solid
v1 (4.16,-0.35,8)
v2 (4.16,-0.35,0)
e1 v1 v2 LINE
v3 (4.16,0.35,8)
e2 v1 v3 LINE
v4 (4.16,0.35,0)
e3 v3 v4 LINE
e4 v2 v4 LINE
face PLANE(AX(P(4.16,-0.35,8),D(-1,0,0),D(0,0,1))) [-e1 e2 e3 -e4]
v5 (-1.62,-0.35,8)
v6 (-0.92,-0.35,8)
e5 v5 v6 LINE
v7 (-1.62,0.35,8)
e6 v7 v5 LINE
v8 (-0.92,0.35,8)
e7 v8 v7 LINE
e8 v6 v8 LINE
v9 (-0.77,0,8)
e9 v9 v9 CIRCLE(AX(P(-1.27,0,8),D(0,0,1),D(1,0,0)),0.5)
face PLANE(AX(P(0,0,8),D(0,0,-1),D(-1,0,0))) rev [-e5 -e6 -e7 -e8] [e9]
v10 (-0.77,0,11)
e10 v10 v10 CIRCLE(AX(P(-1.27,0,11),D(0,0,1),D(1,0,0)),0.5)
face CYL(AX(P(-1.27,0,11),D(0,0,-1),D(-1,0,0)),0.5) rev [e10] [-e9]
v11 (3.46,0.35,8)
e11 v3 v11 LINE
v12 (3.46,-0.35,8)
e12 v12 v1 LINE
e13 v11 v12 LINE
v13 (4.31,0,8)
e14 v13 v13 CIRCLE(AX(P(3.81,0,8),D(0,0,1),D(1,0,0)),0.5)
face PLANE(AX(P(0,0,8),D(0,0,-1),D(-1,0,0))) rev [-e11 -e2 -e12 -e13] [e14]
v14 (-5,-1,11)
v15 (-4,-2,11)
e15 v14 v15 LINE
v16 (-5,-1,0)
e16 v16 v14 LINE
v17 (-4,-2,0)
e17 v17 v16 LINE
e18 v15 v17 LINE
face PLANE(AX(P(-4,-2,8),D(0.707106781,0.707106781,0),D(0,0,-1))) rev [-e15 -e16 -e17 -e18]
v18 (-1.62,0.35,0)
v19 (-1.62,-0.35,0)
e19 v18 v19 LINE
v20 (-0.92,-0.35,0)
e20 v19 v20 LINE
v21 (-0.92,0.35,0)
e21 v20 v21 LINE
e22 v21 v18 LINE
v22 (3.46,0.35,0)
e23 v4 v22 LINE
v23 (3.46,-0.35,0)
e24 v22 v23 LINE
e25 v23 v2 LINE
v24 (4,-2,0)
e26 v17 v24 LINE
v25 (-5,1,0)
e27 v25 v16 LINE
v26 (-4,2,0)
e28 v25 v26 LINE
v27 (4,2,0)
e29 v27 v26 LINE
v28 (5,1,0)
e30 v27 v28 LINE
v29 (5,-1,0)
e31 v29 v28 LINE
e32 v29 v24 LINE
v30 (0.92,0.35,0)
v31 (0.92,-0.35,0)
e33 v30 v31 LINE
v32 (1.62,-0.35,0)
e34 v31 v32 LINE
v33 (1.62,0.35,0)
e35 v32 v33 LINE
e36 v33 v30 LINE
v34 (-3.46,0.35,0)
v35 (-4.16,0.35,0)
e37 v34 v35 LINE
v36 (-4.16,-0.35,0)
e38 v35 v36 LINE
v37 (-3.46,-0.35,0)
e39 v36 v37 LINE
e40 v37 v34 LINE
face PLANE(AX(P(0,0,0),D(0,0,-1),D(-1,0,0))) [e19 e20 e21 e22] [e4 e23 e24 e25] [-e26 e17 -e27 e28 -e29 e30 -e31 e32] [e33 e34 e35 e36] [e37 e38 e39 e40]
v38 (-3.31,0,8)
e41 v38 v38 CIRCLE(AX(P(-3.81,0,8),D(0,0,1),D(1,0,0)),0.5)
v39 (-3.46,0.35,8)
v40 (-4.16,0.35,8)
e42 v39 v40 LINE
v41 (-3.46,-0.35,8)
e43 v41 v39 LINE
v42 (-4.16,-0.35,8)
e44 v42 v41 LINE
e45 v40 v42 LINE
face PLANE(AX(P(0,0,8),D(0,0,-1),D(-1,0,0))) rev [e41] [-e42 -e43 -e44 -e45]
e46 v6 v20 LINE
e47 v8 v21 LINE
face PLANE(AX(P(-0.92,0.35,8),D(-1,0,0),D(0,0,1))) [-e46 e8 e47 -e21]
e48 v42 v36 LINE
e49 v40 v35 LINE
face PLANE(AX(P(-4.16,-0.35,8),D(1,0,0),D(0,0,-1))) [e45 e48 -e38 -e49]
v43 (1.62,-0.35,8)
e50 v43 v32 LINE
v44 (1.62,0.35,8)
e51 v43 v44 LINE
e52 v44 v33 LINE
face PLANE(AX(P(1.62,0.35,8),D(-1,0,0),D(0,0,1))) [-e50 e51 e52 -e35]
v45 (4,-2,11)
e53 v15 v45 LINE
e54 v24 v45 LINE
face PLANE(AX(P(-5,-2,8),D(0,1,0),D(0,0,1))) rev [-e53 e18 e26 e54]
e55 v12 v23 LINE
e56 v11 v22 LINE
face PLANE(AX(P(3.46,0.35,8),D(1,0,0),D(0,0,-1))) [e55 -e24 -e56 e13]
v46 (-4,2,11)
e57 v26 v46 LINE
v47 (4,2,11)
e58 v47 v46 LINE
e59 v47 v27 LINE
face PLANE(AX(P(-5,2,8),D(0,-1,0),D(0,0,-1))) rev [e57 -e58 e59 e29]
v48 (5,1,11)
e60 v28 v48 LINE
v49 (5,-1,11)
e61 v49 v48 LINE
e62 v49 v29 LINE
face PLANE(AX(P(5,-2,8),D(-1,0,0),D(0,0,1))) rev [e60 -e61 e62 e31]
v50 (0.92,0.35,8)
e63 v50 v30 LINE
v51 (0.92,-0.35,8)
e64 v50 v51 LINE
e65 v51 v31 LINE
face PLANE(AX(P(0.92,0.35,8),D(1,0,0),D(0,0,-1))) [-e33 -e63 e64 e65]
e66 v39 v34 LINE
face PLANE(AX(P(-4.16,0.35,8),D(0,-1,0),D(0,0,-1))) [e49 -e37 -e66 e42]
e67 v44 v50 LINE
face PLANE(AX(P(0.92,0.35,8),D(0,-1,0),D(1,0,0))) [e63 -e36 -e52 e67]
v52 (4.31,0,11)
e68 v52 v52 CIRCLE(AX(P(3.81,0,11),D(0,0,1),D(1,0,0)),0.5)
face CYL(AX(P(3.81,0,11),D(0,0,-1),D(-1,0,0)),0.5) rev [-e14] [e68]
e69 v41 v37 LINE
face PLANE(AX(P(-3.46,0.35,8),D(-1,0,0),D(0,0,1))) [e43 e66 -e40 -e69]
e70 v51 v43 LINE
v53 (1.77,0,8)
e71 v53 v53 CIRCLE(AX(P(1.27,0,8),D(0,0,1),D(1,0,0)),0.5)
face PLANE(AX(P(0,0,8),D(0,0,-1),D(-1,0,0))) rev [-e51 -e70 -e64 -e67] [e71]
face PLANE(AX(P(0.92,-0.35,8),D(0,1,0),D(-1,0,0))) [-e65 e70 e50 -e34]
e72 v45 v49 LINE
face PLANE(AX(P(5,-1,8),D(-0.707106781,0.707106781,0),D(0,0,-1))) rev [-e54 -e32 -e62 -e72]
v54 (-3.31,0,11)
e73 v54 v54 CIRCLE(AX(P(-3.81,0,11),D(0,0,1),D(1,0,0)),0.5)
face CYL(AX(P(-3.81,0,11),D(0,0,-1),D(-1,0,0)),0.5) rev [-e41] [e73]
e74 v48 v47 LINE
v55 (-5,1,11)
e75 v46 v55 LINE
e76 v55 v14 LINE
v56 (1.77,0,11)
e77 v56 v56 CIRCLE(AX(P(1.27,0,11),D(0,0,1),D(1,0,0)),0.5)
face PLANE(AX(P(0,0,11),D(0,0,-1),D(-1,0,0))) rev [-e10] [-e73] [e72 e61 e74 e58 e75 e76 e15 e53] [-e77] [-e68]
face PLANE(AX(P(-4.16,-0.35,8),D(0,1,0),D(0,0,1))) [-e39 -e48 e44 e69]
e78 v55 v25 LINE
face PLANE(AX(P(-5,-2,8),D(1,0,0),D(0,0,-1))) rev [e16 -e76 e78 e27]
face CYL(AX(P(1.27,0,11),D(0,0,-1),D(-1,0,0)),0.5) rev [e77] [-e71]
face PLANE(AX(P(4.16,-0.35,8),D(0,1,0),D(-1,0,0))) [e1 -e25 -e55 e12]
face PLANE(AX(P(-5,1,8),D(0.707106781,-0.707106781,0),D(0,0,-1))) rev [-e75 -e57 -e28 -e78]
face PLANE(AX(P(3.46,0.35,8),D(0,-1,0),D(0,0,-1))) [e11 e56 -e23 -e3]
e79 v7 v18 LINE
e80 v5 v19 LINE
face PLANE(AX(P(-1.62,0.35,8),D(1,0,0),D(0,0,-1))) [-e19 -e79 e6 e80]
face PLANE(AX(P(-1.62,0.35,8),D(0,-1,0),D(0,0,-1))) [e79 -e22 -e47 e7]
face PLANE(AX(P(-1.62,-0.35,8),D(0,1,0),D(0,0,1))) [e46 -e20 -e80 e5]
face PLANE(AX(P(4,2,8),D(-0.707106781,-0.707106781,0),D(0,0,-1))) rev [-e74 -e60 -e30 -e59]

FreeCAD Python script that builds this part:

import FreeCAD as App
import Part
import Sketcher
from FreeCAD import Vector
Q = App.Units.Quantity


def edges_at(feature, points):
    """Names of the edges that pass closest to the given points."""
    edges = feature.Shape.Edges
    near = lambda p: min(range(len(edges)), key=lambda i: edges[i].distToShape(Part.Vertex(*p))[0])
    return sorted({f"Edge{near(p) + 1}" for p in points})


def add_polygon(sketch, points):
    """Adds a closed chain of lines whose ends are joined by coincident constraints."""
    first, n = sketch.GeometryCount, len(points)
    for a, b in zip(points, points[1:] + points[:1]):
        sketch.addGeometry(Part.LineSegment(App.Vector(*a, 0), App.Vector(*b, 0)), False)
    for i in range(n):
        sketch.addConstraint(Sketcher.Constraint("Coincident", first + i, 2, first + (i + 1) % n, 1))

doc = App.newDocument("Part")
body = doc.addObject("PartDesign::Body", "Body")

sketch1 = body.newObject("Sketcher::SketchObject", "Sketch")
sketch1.AttachmentSupport = (doc.getObject("XY_Plane"), [""])
sketch1.MapMode = "FlatFace"
add_polygon(sketch1, [(-5, 2), (-5, -2), (5, -2), (5, 2)])
add_polygon(sketch1, [(-3.46, -0.35), (-4.16, -0.35), (-4.16, 0.35), (-3.46, 0.35)])
add_polygon(sketch1, [(-0.92, -0.35), (-1.62, -0.35), (-1.62, 0.35), (-0.92, 0.35)])
add_polygon(sketch1, [(1.62, -0.35), (0.92, -0.35), (0.92, 0.35), (1.62, 0.35)])
add_polygon(sketch1, [(4.16, -0.35), (3.46, -0.35), (3.46, 0.35), (4.16, 0.35)])
sketch1.addConstraint([
    Sketcher.Constraint("Vertical", 0),
    Sketcher.Constraint("Horizontal", 1),
    Sketcher.Constraint("Vertical", 2),
    Sketcher.Constraint("Horizontal", 3),
    Sketcher.Constraint("Horizontal", 4),
    Sketcher.Constraint("Vertical", 5),
    Sketcher.Constraint("Horizontal", 6),
    Sketcher.Constraint("Vertical", 7),
    Sketcher.Constraint("Horizontal", 8),
    Sketcher.Constraint("Vertical", 9),
    Sketcher.Constraint("Horizontal", 10),
    Sketcher.Constraint("Vertical", 11),
    Sketcher.Constraint("Horizontal", 12),
    Sketcher.Constraint("Vertical", 13),
    Sketcher.Constraint("Horizontal", 14),
    Sketcher.Constraint("Vertical", 15),
    Sketcher.Constraint("Horizontal", 16),
    Sketcher.Constraint("Vertical", 17),
    Sketcher.Constraint("Horizontal", 18),
    Sketcher.Constraint("Vertical", 19),
    Sketcher.Constraint("Symmetric", 0, 2, 2, 2, -1, 1),
    Sketcher.Constraint("Symmetric", 10, 2, 12, 2, -1, 1),
    Sketcher.Constraint("Symmetric", 8, 2, 14, 2, -1, 1),
    Sketcher.Constraint("Symmetric", 6, 2, 16, 2, -1, 1),
    Sketcher.Constraint("Symmetric", 4, 2, 18, 2, -1, 1),
    Sketcher.Constraint("Horizontal", 7, 2, 8, 2),
    Sketcher.Constraint("Horizontal", 6, 2, 9, 2),
    Sketcher.Constraint("Horizontal", 11, 2, 12, 2),
    Sketcher.Constraint("Equal", 6, 8),
    Sketcher.Constraint("Equal", 18, 5),
    Sketcher.Constraint("DistanceX", 1, 1, 1, 2, Q("10 mm")),
    Sketcher.Constraint("DistanceY", 0, 2, 0, 1, Q("4 mm")),
    Sketcher.Constraint("DistanceX", 4, 2, 4, 1, Q("0.7 mm")),
    Sketcher.Constraint("DistanceX", 4, 2, -1, 1, Q("4.16 mm")),
    Sketcher.Constraint("DistanceX", 8, 2, -1, 1, Q("1.62 mm")),
])
pad1 = body.newObject("PartDesign::Pad", "Pad")
pad1.Profile = sketch1
pad1.Length = 8

sketch2 = body.newObject("Sketcher::SketchObject", "Sketch001")
sketch2.AttachmentSupport = (doc.getObject("XY_Plane"), [""])
sketch2.MapMode = "FlatFace"
sketch2.AttachmentOffset = App.Placement(Vector(0, 0, 8), App.Rotation())
add_polygon(sketch2, [(-5, 2), (-5, -2), (5, -2), (5, 2)])
sketch2.addGeometry(Part.Circle(Vector(-3.81, 0, 0), Vector(0, 0, 1), 0.5), False)
sketch2.addGeometry(Part.Circle(Vector(-1.27, 0, 0), Vector(0, 0, 1), 0.5), False)
sketch2.addGeometry(Part.Circle(Vector(1.27, 0, 0), Vector(0, 0, 1), 0.5), False)
sketch2.addGeometry(Part.Circle(Vector(3.81, 0, 0), Vector(0, 0, 1), 0.5), False)
sketch2.addConstraint([
    Sketcher.Constraint("Vertical", 0),
    Sketcher.Constraint("Horizontal", 1),
    Sketcher.Constraint("Vertical", 2),
    Sketcher.Constraint("Horizontal", 3),
    Sketcher.Constraint("Equal", 4, 5),
    Sketcher.Constraint("Equal", 5, 6),
    Sketcher.Constraint("Equal", 6, 7),
    Sketcher.Constraint("Symmetric", 5, 3, 6, 3, -1, 1),
    Sketcher.Constraint("Symmetric", 4, 3, 7, 3, -1, 1),
    Sketcher.Constraint("Symmetric", 0, 2, 2, 2, -1, 1),
    Sketcher.Constraint("PointOnObject", 4, 3, -1),
    Sketcher.Constraint("PointOnObject", 5, 3, -1),
    Sketcher.Constraint("Diameter", 4, Q("1 mm")),
    Sketcher.Constraint("DistanceX", 1, 1, 1, 2, Q("10 mm")),
    Sketcher.Constraint("DistanceY", 0, 2, 0, 1, Q("4 mm")),
    Sketcher.Constraint("DistanceX", 4, 3, -1, 1, Q("3.81 mm")),
    Sketcher.Constraint("DistanceX", 5, 3, -1, 1, Q("1.27 mm")),
])
pad2 = body.newObject("PartDesign::Pad", "Pad001")
pad2.Profile = sketch2
pad2.Length = 3
doc.recompute()

chamfer = body.newObject("PartDesign::Chamfer", "Chamfer")
chamfer.Base = (pad2, edges_at(pad2, [
    (5, -2, 5.5),
    (-5, -2, 5.5),
    (-5, 2, 5.5),
    (5, 2, 5.5),
]))
chamfer.Size = 1

doc.recompute()
